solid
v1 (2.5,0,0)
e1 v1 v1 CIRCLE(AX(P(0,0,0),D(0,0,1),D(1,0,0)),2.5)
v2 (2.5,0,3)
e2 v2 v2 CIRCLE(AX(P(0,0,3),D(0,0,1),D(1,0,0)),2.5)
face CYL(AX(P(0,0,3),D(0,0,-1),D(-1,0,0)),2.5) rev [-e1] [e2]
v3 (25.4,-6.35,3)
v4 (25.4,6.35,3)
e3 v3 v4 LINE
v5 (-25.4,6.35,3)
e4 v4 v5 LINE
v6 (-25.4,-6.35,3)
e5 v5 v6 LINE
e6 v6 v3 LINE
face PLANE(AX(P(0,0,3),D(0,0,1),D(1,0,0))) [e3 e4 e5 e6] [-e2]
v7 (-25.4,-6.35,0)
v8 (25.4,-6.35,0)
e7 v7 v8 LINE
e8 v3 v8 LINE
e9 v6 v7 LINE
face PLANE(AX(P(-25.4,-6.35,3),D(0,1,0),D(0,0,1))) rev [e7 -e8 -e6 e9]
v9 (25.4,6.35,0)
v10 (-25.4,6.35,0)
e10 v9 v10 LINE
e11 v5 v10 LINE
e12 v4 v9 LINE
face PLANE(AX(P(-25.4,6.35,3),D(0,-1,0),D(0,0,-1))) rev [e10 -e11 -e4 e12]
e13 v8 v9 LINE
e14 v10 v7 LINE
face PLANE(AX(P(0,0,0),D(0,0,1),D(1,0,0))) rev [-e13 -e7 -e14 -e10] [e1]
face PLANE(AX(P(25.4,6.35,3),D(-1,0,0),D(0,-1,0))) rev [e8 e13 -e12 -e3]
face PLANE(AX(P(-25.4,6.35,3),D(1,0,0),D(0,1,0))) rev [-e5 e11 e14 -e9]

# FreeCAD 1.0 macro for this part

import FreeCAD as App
import Part
import Sketcher

doc = App.newDocument("Part")
params = doc.addObject("Spreadsheet::Sheet", "Params")
for row, (alias, value) in enumerate([
    ("sketch1_diameter", "5 mm"),
    ("sketch1_width", "50.8 mm"),
    ("sketch1_height", "12.7 mm"),
    ("pad1_length", "3 mm"),
], start=1):
    params.set(f"A{row}", alias)
    params.set(f"B{row}", "=" + value)
    params.setAlias(f"B{row}", alias)

body = doc.addObject("PartDesign::Body", "Body")

sketch1 = doc.addObject("Sketcher::SketchObject", "Sketch")
body.addObject(sketch1)
sketch1.AttachmentSupport = (doc.XY_Plane, [""])
sketch1.MapMode = "FlatFace"
sketch1.addGeometry(Part.LineSegment(App.Vector(-25.4, 6.3, 0), App.Vector(-25.4, -6.3, 0)), False)
sketch1.addGeometry(Part.LineSegment(App.Vector(-25.4, -6.3, 0), App.Vector(25.4, -6.3, 0)), False)
sketch1.addGeometry(Part.LineSegment(App.Vector(25.4, -6.3, 0), App.Vector(25.4, 6.3, 0)), False)
sketch1.addGeometry(Part.LineSegment(App.Vector(25.4, 6.3, 0), App.Vector(-25.4, 6.3, 0)), False)
sketch1.addGeometry(Part.Circle(App.Vector(0, 0, 0), App.Vector(0, 0, 1), 2.5), False)
sketch1.addConstraint(Sketcher.Constraint("Coincident", 0, 2, 1, 1))
sketch1.addConstraint(Sketcher.Constraint("Coincident", 1, 2, 2, 1))
sketch1.addConstraint(Sketcher.Constraint("Coincident", 2, 2, 3, 1))
sketch1.addConstraint(Sketcher.Constraint("Coincident", 3, 2, 0, 1))
sketch1.addConstraint(Sketcher.Constraint("Vertical", 0))
sketch1.addConstraint(Sketcher.Constraint("Horizontal", 1))
sketch1.addConstraint(Sketcher.Constraint("Vertical", 2))
sketch1.addConstraint(Sketcher.Constraint("Horizontal", 3))
sketch1.addConstraint(Sketcher.Constraint("Coincident", 4, 3, -1, 1))
sketch1.addConstraint(Sketcher.Constraint("Symmetric", 0, 2, 2, 2, -1, 1))
sketch1.addConstraint(Sketcher.Constraint("Diameter", 4, 5.0))
sketch1.addConstraint(Sketcher.Constraint("DistanceX", 1, 1, 1, 2, 50.8))
sketch1.addConstraint(Sketcher.Constraint("DistanceY", 0, 2, 0, 1, 12.7))
sketch1.setExpression("Constraints[10]", "Params.sketch1_diameter")
sketch1.setExpression("Constraints[11]", "Params.sketch1_width")
sketch1.setExpression("Constraints[12]", "Params.sketch1_height")
pad1 = doc.addObject("PartDesign::Pad", "Pad")
body.addObject(pad1)
pad1.Profile = sketch1
pad1.setExpression("Length", "Params.pad1_length")

doc.recompute()
